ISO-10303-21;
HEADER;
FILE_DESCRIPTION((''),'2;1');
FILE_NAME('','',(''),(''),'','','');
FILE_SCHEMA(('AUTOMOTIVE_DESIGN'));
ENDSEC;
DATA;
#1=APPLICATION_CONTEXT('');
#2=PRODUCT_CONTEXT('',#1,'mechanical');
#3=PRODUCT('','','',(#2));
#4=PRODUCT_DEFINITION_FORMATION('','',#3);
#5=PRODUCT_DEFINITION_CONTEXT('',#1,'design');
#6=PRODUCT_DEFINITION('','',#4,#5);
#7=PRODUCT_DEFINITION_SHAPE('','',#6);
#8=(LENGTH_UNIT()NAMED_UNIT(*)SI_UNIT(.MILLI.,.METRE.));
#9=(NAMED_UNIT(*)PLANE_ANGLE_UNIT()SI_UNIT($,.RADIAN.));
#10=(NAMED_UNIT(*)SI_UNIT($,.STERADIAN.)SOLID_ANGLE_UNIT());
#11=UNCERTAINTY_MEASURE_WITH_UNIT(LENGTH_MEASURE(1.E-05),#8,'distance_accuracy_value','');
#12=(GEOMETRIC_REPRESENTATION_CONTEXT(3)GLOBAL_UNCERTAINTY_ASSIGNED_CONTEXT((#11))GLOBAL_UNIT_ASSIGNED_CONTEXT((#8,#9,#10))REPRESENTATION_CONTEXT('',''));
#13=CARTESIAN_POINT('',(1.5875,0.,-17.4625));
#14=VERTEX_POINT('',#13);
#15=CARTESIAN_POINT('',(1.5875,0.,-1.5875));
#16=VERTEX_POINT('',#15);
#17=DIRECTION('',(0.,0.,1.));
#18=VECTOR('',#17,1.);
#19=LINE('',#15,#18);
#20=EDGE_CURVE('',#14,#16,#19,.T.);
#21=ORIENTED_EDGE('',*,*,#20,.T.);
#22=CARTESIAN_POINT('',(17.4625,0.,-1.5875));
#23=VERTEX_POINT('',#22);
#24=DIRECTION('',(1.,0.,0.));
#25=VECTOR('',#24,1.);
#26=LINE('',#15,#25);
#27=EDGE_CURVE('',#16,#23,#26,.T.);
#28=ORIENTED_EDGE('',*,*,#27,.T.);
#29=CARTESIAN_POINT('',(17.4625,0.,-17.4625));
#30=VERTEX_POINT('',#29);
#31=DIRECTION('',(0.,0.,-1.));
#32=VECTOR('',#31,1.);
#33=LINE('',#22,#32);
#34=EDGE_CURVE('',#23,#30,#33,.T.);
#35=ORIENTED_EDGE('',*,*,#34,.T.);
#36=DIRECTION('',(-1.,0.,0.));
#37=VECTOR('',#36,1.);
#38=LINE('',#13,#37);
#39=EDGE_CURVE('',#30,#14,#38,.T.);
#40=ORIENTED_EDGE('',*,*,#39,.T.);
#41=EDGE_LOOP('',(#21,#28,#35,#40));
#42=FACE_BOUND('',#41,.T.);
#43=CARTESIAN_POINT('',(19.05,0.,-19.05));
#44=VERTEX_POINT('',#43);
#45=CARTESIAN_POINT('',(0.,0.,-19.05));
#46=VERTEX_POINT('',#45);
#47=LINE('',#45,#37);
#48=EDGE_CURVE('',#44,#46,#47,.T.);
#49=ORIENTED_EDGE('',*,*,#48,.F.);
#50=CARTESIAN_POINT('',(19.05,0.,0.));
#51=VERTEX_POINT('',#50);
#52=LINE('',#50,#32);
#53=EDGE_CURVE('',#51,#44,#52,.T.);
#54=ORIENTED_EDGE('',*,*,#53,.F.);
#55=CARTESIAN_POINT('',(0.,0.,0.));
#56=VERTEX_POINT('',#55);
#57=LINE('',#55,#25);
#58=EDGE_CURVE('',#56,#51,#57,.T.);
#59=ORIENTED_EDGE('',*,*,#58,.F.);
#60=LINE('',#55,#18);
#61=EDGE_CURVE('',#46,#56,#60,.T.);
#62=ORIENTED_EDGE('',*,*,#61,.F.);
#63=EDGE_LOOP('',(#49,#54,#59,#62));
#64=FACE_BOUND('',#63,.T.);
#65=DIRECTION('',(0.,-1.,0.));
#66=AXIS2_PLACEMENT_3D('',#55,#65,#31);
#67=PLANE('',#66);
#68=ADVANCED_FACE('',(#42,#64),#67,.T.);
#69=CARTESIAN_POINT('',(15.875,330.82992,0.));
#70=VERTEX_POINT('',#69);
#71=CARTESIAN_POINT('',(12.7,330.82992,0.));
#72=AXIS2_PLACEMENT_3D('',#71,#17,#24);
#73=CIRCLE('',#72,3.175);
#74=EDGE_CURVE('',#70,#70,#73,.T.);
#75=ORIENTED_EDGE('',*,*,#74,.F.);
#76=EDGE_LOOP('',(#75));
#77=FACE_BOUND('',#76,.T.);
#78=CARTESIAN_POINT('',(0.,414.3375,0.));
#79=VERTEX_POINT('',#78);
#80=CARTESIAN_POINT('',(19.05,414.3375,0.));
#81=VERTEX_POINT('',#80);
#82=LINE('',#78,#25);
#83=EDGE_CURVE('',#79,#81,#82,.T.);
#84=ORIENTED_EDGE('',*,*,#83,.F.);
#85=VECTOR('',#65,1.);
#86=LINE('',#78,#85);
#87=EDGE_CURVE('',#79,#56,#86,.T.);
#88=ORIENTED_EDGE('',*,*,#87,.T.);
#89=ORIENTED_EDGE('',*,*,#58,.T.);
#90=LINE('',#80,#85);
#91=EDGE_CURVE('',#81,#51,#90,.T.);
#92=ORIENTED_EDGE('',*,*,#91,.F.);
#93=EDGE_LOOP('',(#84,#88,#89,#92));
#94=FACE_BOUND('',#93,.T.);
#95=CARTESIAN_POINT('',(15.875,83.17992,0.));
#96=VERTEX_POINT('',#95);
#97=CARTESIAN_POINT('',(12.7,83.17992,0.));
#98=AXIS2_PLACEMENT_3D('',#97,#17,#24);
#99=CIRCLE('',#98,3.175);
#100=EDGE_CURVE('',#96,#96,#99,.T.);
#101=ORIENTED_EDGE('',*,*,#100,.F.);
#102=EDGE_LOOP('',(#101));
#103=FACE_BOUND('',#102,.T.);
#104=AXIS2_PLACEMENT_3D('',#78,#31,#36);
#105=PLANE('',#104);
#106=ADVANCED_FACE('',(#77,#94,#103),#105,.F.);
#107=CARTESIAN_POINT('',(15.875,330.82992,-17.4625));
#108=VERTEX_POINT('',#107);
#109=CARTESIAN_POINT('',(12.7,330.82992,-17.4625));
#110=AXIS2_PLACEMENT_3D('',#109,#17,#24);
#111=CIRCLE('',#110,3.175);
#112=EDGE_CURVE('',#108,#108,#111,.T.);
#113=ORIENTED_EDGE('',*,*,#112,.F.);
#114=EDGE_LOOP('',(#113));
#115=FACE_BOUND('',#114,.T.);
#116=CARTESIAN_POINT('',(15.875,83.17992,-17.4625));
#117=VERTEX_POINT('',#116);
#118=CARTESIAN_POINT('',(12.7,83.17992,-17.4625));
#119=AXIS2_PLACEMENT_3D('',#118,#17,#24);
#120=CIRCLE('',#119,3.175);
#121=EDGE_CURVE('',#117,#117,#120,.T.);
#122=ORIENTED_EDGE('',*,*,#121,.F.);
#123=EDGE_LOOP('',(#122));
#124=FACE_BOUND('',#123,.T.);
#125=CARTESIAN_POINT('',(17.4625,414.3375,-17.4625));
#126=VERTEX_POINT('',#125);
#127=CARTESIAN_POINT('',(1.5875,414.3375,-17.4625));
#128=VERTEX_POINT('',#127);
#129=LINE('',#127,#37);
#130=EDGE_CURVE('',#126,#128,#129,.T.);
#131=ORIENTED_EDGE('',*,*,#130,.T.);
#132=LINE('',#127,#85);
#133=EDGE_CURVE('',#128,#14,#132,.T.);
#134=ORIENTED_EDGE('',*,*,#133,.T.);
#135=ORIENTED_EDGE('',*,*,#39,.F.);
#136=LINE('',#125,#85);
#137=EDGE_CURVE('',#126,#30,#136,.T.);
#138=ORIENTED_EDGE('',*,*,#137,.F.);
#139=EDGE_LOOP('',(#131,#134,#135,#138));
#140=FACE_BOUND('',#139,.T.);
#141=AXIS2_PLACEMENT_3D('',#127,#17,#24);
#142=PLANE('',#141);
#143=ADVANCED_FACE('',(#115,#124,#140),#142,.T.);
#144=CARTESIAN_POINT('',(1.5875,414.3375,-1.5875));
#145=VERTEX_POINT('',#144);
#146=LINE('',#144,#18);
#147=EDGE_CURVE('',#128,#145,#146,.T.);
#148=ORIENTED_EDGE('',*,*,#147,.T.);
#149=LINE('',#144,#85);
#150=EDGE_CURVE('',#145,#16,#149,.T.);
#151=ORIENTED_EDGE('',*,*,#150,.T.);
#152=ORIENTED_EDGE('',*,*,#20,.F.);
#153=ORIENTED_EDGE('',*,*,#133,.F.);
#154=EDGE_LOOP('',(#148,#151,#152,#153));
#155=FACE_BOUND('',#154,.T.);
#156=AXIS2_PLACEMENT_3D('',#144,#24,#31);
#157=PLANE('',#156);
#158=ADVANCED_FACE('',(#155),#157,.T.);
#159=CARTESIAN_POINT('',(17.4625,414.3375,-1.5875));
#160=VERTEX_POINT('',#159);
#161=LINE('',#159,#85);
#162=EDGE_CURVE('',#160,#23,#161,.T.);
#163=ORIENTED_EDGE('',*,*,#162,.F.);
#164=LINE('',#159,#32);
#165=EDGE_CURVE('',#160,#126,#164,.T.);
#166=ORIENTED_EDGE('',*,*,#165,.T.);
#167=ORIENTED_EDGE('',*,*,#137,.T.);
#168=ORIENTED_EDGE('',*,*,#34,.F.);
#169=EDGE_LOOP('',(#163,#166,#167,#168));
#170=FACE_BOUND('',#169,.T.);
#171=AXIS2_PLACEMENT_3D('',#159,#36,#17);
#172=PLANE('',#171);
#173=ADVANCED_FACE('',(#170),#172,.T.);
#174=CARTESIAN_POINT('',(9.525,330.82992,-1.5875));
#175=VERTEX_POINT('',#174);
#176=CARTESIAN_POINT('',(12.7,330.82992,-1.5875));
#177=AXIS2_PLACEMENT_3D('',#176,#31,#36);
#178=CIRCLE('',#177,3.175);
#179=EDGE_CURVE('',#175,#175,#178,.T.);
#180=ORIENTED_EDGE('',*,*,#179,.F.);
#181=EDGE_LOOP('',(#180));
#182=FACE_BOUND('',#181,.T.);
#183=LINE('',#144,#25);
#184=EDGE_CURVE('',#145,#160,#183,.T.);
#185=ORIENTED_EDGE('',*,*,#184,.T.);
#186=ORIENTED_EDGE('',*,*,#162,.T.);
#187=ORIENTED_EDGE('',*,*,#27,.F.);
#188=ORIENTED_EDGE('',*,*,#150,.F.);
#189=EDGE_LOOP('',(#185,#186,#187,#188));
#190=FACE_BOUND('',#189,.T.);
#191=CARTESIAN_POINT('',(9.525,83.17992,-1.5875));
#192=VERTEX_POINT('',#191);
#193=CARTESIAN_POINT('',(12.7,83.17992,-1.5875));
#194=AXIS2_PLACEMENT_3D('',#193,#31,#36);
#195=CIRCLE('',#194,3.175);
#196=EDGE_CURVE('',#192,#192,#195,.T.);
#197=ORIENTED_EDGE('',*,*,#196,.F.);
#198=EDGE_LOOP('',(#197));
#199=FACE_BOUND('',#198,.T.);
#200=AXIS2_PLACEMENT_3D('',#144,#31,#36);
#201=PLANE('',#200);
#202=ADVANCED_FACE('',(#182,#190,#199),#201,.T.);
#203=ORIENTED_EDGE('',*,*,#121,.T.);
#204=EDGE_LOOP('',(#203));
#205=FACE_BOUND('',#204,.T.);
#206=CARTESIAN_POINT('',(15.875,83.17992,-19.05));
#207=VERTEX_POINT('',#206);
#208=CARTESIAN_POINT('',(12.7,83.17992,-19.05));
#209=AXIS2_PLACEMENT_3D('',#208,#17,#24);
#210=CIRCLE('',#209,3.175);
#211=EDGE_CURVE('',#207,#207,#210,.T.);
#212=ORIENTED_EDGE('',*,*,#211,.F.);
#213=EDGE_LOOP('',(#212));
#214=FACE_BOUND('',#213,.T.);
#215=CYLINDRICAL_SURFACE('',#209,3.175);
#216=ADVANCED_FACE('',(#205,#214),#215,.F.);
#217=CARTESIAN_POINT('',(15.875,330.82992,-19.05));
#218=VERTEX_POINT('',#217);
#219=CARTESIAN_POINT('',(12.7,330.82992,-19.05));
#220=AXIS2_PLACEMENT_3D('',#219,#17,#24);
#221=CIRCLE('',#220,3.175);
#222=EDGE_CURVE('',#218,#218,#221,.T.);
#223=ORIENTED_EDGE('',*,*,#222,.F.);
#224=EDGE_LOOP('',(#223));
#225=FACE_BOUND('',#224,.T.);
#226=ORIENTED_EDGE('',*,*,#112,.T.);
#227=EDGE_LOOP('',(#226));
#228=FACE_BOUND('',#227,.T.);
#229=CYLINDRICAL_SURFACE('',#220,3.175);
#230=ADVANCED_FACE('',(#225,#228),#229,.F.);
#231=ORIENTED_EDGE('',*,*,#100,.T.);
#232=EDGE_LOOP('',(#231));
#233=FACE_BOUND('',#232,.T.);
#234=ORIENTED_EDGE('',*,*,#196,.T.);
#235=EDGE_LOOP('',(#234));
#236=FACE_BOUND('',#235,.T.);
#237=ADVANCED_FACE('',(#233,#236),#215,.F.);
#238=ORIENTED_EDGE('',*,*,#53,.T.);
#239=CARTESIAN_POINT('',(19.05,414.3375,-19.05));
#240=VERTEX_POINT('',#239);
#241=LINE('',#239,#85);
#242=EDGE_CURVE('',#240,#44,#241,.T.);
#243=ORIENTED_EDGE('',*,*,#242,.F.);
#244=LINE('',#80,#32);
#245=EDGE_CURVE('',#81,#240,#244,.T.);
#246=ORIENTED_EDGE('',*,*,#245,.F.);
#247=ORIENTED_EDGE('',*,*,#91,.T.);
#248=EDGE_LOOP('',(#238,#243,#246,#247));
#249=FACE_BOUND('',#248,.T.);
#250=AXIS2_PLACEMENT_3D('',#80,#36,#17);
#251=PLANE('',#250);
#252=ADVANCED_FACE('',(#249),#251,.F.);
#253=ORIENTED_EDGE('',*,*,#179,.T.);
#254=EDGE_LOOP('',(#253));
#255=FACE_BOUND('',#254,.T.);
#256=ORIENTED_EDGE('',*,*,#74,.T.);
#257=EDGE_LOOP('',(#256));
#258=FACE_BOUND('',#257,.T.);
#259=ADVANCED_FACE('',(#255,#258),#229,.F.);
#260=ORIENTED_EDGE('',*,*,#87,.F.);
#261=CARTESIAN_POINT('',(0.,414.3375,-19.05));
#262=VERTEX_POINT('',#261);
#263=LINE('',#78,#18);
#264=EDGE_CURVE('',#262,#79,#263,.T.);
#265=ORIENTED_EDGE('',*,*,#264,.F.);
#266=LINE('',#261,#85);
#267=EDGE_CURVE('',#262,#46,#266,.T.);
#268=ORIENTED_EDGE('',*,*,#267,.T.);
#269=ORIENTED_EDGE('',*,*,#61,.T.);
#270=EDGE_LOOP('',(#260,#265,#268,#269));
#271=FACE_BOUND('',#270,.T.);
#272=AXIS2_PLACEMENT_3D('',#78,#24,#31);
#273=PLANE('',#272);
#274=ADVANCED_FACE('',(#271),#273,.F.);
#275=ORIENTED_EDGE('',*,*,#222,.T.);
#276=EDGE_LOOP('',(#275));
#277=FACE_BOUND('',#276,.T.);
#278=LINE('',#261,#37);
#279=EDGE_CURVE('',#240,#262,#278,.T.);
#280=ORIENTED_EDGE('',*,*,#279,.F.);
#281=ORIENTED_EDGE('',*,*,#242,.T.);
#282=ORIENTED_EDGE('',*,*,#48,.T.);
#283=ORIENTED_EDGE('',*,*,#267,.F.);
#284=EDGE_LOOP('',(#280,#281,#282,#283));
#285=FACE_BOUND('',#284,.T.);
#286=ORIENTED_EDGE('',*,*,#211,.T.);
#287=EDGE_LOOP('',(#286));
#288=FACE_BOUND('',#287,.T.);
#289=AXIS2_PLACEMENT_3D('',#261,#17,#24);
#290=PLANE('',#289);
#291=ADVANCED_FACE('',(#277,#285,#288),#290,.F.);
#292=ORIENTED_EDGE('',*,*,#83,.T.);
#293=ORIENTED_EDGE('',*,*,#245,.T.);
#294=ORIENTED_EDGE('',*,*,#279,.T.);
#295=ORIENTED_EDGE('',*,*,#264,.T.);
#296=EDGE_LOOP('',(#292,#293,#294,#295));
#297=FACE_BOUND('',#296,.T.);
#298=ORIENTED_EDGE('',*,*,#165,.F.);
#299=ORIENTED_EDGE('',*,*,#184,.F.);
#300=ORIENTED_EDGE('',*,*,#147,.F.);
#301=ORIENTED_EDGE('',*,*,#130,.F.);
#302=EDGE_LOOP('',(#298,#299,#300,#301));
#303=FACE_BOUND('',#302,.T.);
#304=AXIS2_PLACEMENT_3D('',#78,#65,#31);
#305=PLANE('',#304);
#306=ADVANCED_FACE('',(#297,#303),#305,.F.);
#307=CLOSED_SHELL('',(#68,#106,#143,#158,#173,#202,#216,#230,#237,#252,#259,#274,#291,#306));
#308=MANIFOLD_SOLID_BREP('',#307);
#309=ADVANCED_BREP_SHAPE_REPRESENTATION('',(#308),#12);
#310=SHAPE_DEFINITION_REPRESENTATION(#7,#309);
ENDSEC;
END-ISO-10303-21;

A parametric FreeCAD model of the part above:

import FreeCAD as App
import Part
import Sketcher
Q = App.Units.Quantity

doc = App.newDocument("Part")
body = doc.addObject("PartDesign::Body", "Body")

# Sketch on XZ plane
sketch1 = body.newObject("Sketcher::SketchObject", "Sketch")
sketch1.AttachmentSupport = (doc.getObject("XZ_Plane"), [""])
sketch1.MapMode = "FlatFace"
sketch1.addGeometry(Part.LineSegment(App.Vector(0, -19, 0), App.Vector(0, 0, 0)), False)
sketch1.addGeometry(Part.LineSegment(App.Vector(0, 0, 0), App.Vector(19, 0, 0)), False)
sketch1.addGeometry(Part.LineSegment(App.Vector(19, 0, 0), App.Vector(19, -19, 0)), False)
sketch1.addGeometry(Part.LineSegment(App.Vector(19, -19, 0), App.Vector(0, -19, 0)), False)
sketch1.addGeometry(Part.LineSegment(App.Vector(17, -2, 0), App.Vector(2, -2, 0)), False)
sketch1.addGeometry(Part.LineSegment(App.Vector(2, -2, 0), App.Vector(2, -17, 0)), False)
sketch1.addGeometry(Part.LineSegment(App.Vector(2, -17, 0), App.Vector(17, -17, 0)), False)
sketch1.addGeometry(Part.LineSegment(App.Vector(17, -17, 0), App.Vector(17, -2, 0)), False)
sketch1.addConstraint(Sketcher.Constraint("Coincident", 0, 2, 1, 1))
sketch1.addConstraint(Sketcher.Constraint("Coincident", 1, 2, 2, 1))
sketch1.addConstraint(Sketcher.Constraint("Coincident", 2, 2, 3, 1))
sketch1.addConstraint(Sketcher.Constraint("Coincident", 3, 2, 0, 1))
sketch1.addConstraint(Sketcher.Constraint("Coincident", 4, 2, 5, 1))
sketch1.addConstraint(Sketcher.Constraint("Coincident", 5, 2, 6, 1))
sketch1.addConstraint(Sketcher.Constraint("Coincident", 6, 2, 7, 1))
sketch1.addConstraint(Sketcher.Constraint("Coincident", 7, 2, 4, 1))
sketch1.addConstraint(Sketcher.Constraint("Vertical", 0))
sketch1.addConstraint(Sketcher.Constraint("Horizontal", 1))
sketch1.addConstraint(Sketcher.Constraint("Vertical", 2))
sketch1.addConstraint(Sketcher.Constraint("Horizontal", 3))
sketch1.addConstraint(Sketcher.Constraint("Horizontal", 4))
sketch1.addConstraint(Sketcher.Constraint("Vertical", 5))
sketch1.addConstraint(Sketcher.Constraint("Horizontal", 6))
sketch1.addConstraint(Sketcher.Constraint("Vertical", 7))
sketch1.addConstraint(Sketcher.Constraint("Coincident", 0, 2, -1, 1))
sketch1.addConstraint(Sketcher.Constraint("Equal", 3, 0))
sketch1.addConstraint(Sketcher.Constraint("Equal", 6, 5))
sketch1.addConstraint(Sketcher.Constraint("DistanceX", 1, 1, 1, 2, Q("0.75 in")))
sketch1.addConstraint(Sketcher.Constraint("DistanceX", 4, 2, 4, 1, Q("0.625 in")))
sketch1.addConstraint(Sketcher.Constraint("DistanceX", -1, 1, 4, 2, Q("0.0625 in")))
sketch1.addConstraint(Sketcher.Constraint("DistanceY", 4, 2, -1, 1, Q("0.0625 in")))
pad1 = body.newObject("PartDesign::Pad", "Pad")
pad1.Profile = sketch1
pad1.Length = Q("16.3125 in")
pad1.Reversed = True

# Sketch on XY plane
sketch2 = body.newObject("Sketcher::SketchObject", "Sketch001")
sketch2.AttachmentSupport = (doc.getObject("XY_Plane"), [""])
sketch2.MapMode = "FlatFace"
sketch2.addGeometry(Part.Circle(App.Vector(12.7, 83.2, 0), App.Vector(0, 0, 1), 3.2), False)
sketch2.addGeometry(Part.Circle(App.Vector(12.7, 330.8, 0), App.Vector(0, 0, 1), 3.2), False)
sketch2.addConstraint(Sketcher.Constraint("Equal", 0, 1))
sketch2.addConstraint(Sketcher.Constraint("Vertical", 0, 3, 1, 3))
sketch2.addConstraint(Sketcher.Constraint("Diameter", 0, Q("0.25 in")))
sketch2.addConstraint(Sketcher.Constraint("DistanceX", -1, 1, 0, 3, Q("0.5 in")))
sketch2.addConstraint(Sketcher.Constraint("DistanceY", 0, 3, 1, 3, Q("9.75 in")))
sketch2.addConstraint(Sketcher.Constraint("DistanceY", -1, 1, 0, 3, Q("3.2748 in")))
pocket1 = body.newObject("PartDesign::Pocket", "Pocket")
pocket1.Profile = sketch2
pocket1.Type = "ThroughAll"

doc.recompute()
